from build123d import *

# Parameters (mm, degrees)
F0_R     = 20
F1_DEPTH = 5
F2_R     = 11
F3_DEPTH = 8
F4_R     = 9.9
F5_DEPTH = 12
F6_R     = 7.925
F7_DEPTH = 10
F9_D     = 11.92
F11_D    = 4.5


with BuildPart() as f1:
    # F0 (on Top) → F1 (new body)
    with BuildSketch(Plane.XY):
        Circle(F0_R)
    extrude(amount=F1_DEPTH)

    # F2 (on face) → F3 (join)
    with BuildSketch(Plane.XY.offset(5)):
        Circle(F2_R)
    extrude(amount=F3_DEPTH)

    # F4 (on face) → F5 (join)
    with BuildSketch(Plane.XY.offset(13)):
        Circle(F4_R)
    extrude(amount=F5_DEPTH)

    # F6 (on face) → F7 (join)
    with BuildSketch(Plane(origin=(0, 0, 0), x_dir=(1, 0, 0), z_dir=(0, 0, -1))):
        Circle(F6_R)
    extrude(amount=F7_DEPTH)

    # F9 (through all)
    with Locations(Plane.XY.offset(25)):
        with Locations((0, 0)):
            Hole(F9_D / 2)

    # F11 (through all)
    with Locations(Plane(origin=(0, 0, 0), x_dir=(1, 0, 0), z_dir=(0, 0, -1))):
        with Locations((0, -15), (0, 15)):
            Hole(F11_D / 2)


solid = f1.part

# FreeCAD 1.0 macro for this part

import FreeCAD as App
import Part
import Sketcher
from FreeCAD import Vector

doc = App.newDocument("Part")
body = doc.addObject("PartDesign::Body", "Body")

sketch1 = body.newObject("Sketcher::SketchObject", "Sketch")
sketch1.AttachmentSupport = (doc.getObject("XY_Plane"), [""])
sketch1.MapMode = "FlatFace"
sketch1.addGeometry(Part.Circle(Vector(0, 0, 0), Vector(0, 0, 1), 20), False)
sketch1.addConstraint(Sketcher.Constraint("Coincident", 0, 3, -1, 1))
sketch1.addConstraint(Sketcher.Constraint("Diameter", 0, 40.0))
pad1 = body.newObject("PartDesign::Pad", "Pad")
pad1.Profile = sketch1
pad1.Length = 5

sketch2 = body.newObject("Sketcher::SketchObject", "Sketch001")
sketch2.AttachmentSupport = (doc.getObject("XY_Plane"), [""])
sketch2.MapMode = "FlatFace"
sketch2.AttachmentOffset = App.Placement(Vector(0, 0, 5), App.Rotation())
sketch2.addGeometry(Part.Circle(Vector(0, 0, 0), Vector(0, 0, 1), 11), False)
sketch2.addConstraint(Sketcher.Constraint("Coincident", 0, 3, -1, 1))
sketch2.addConstraint(Sketcher.Constraint("Diameter", 0, 22.0))
pad2 = body.newObject("PartDesign::Pad", "Pad001")
pad2.Profile = sketch2
pad2.Length = 8

sketch3 = body.newObject("Sketcher::SketchObject", "Sketch002")
sketch3.AttachmentSupport = (doc.getObject("XY_Plane"), [""])
sketch3.MapMode = "FlatFace"
sketch3.AttachmentOffset = App.Placement(Vector(0, 0, 13), App.Rotation())
sketch3.addGeometry(Part.Circle(Vector(0, 0, 0), Vector(0, 0, 1), 9.9), False)
sketch3.addConstraint(Sketcher.Constraint("Coincident", 0, 3, -1, 1))
sketch3.addConstraint(Sketcher.Constraint("Diameter", 0, 19.8))
pad3 = body.newObject("PartDesign::Pad", "Pad002")
pad3.Profile = sketch3
pad3.Length = 12

sketch4 = body.newObject("Sketcher::SketchObject", "Sketch003")
sketch4.AttachmentSupport = (doc.getObject("XY_Plane"), [""])
sketch4.MapMode = "FlatFace"
sketch4.addGeometry(Part.Circle(Vector(0, 0, 0), Vector(0, 0, 1), 7.925), False)
sketch4.addConstraint(Sketcher.Constraint("Coincident", 0, 3, -1, 1))
sketch4.addConstraint(Sketcher.Constraint("Diameter", 0, 15.85))
pad4 = body.newObject("PartDesign::Pad", "Pad003")
pad4.Profile = sketch4
pad4.Length = 10
pad4.Reversed = True

sketch5 = body.newObject("Sketcher::SketchObject", "Sketch004")
sketch5.AttachmentSupport = (doc.getObject("XY_Plane"), [""])
sketch5.MapMode = "FlatFace"
sketch5.AttachmentOffset = App.Placement(Vector(0, 0, 25), App.Rotation())
sketch5.addGeometry(Part.Circle(Vector(0, 0, 0), Vector(0, 0, 1), 5.96), False)
sketch5.addConstraint(Sketcher.Constraint("Coincident", 0, 3, -1, 1))
sketch5.addConstraint(Sketcher.Constraint("Diameter", 0, 11.92))
doc.recompute()
hole = body.newObject("PartDesign::Hole", "Hole")
hole.Profile = sketch5
hole.ThreadType = "None"
hole.Diameter = 11.92
hole.DepthType = "ThroughAll"

sketch6 = body.newObject("Sketcher::SketchObject", "Sketch005")
sketch6.AttachmentSupport = (doc.getObject("XY_Plane"), [""])
sketch6.MapMode = "FlatFace"
sketch6.addGeometry(Part.Circle(Vector(0, 15, 0), Vector(0, 0, 1), 2.25), False)
sketch6.addGeometry(Part.Circle(Vector(0, -15, 0), Vector(0, 0, 1), 2.25), False)
sketch6.addConstraint(Sketcher.Constraint("Equal", 0, 1))
sketch6.addConstraint(Sketcher.Constraint("Symmetric", 0, 3, 1, 3, -1, 1))
sketch6.addConstraint(Sketcher.Constraint("PointOnObject", 0, 3, -2))
sketch6.addConstraint(Sketcher.Constraint("Diameter", 0, 4.5))
sketch6.addConstraint(Sketcher.Constraint("DistanceY", -1, 1, 0, 3, 15.0))
doc.recompute()
hole2 = body.newObject("PartDesign::Hole", "Hole001")
hole2.Profile = sketch6
hole2.ThreadType = "None"
hole2.Diameter = 4.5
hole2.DepthType = "ThroughAll"
hole2.Reversed = True

doc.recompute()
